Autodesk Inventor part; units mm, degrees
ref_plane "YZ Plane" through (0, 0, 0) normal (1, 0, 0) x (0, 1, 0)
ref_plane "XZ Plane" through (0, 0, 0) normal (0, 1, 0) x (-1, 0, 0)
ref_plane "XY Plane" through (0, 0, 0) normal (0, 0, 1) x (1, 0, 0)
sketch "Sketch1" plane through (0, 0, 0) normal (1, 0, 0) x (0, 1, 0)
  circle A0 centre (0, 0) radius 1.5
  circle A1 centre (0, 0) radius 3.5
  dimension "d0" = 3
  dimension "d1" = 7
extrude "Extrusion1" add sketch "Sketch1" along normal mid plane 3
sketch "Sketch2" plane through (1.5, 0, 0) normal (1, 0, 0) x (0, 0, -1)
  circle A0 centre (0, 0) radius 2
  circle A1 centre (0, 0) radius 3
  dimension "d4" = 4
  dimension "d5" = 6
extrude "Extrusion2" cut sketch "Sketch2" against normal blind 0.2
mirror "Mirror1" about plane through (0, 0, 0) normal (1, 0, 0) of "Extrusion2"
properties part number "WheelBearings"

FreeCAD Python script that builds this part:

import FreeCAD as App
import Part
import Sketcher

doc = App.newDocument("Part")
body = doc.addObject("PartDesign::Body", "Body")

sketch1 = body.newObject("Sketcher::SketchObject", "Sketch")
sketch1.AttachmentSupport = (doc.getObject("YZ_Plane"), [""])
sketch1.MapMode = "FlatFace"
sketch1.addGeometry([
    Part.Circle(App.Vector(0, 0, 0), App.Vector(0, 0, 1), 3.5),
    Part.Circle(App.Vector(0, 0, 0), App.Vector(0, 0, 1), 1.5),
], False)
sketch1.addConstraint([
    Sketcher.Constraint("Coincident", 0, 3, -1, 1),
    Sketcher.Constraint("Coincident", 1, 3, -1, 1),
    Sketcher.Constraint("Diameter", 0, 7.0),
    Sketcher.Constraint("Diameter", 1, 3.0),
])
pad1 = body.newObject("PartDesign::Pad", "Pad")
pad1.Profile = sketch1
pad1.Length = 3
pad1.Midplane = True

sketch2 = body.newObject("Sketcher::SketchObject", "Sketch001")
sketch2.AttachmentSupport = (doc.getObject("YZ_Plane"), [""])
sketch2.MapMode = "FlatFace"
sketch2.AttachmentOffset = App.Placement(App.Vector(0, 0, 1.5), App.Rotation())
sketch2.addGeometry([
    Part.Circle(App.Vector(0, 0, 0), App.Vector(0, 0, 1), 3),
    Part.Circle(App.Vector(0, 0, 0), App.Vector(0, 0, 1), 2),
], False)
sketch2.addConstraint([
    Sketcher.Constraint("Coincident", 0, 3, -1, 1),
    Sketcher.Constraint("Coincident", 1, 3, -1, 1),
    Sketcher.Constraint("Diameter", 0, 6.0),
    Sketcher.Constraint("Diameter", 1, 4.0),
])
pocket1 = body.newObject("PartDesign::Pocket", "Pocket")
pocket1.Profile = sketch2
pocket1.Length = 0.2
doc.recompute()

mirrored = body.newObject("PartDesign::Mirrored", "Mirrored")
mirrored.Originals = [pocket1]
mirrored.MirrorPlane = (doc.getObject("YZ_Plane"), [""])
body.Tip = mirrored

doc.recompute()
